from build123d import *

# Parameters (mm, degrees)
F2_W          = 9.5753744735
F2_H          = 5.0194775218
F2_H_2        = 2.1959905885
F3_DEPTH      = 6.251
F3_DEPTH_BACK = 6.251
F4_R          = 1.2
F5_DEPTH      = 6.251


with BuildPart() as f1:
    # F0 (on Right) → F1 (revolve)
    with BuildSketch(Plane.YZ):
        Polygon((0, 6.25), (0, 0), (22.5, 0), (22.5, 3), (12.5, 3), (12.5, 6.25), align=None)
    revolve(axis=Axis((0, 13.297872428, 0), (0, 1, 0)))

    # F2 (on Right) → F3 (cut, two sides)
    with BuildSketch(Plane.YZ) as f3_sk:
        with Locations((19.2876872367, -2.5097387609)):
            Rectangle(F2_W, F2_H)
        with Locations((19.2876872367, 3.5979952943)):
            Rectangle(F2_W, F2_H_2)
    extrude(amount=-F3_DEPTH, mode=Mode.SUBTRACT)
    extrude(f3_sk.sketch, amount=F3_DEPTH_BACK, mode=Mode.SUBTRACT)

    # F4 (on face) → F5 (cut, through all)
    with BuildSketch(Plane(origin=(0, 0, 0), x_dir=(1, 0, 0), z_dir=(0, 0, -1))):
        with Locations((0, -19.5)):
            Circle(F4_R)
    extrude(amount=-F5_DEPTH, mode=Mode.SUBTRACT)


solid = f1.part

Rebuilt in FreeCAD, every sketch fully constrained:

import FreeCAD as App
import Part
import Sketcher
Q = App.Units.Quantity

doc = App.newDocument("Part")
params = doc.addObject("Spreadsheet::Sheet", "Params")
for row, (alias, value) in enumerate([
    ("sketch1_width", "10 mm"),
    ("sketch1_height", "3 mm"),
    ("sketch1_width2", "22.5 mm"),
    ("sketch1_height2", "6.25 mm"),
    ("revolution_angle", "360 deg"),
    ("sketch3_diameter", "2.4 mm"),
], start=1):
    params.set(f"A{row}", alias)
    params.set(f"B{row}", "=" + value)
    params.setAlias(f"B{row}", alias)

body = doc.addObject("PartDesign::Body", "Body")

# Sketch on YZ plane
sketch1 = body.newObject("Sketcher::SketchObject", "Sketch")
sketch1.AttachmentSupport = (doc.getObject("YZ_Plane"), [""])
sketch1.MapMode = "FlatFace"
sketch1.addGeometry([
    Part.LineSegment(App.Vector(0, 6.2, 0), App.Vector(0, 0, 0)),  # 0
    Part.LineSegment(App.Vector(0, 0, 0), App.Vector(22.5, 0, 0)),  # 1
    Part.LineSegment(App.Vector(22.5, 0, 0), App.Vector(22.5, 3, 0)),  # 2
    Part.LineSegment(App.Vector(22.5, 3, 0), App.Vector(12.5, 3, 0)),  # 3
    Part.LineSegment(App.Vector(12.5, 3, 0), App.Vector(12.5, 6.2, 0)),  # 4
    Part.LineSegment(App.Vector(12.5, 6.2, 0), App.Vector(0, 6.2, 0)),  # 5
], False)
sketch1.addConstraint([
    Sketcher.Constraint("Coincident", 0, 2, 1, 1),
    Sketcher.Constraint("Coincident", 1, 2, 2, 1),
    Sketcher.Constraint("Coincident", 2, 2, 3, 1),
    Sketcher.Constraint("Coincident", 3, 2, 4, 1),
    Sketcher.Constraint("Coincident", 4, 2, 5, 1),
    Sketcher.Constraint("Coincident", 5, 2, 0, 1),
    Sketcher.Constraint("Vertical", 0),
    Sketcher.Constraint("Horizontal", 1),
    Sketcher.Constraint("Vertical", 2),
    Sketcher.Constraint("Horizontal", 3),
    Sketcher.Constraint("Vertical", 4),
    Sketcher.Constraint("Horizontal", 5),
    Sketcher.Constraint("Coincident", 0, 2, -1, 1),
    Sketcher.Constraint("DistanceX", 3, 2, 3, 1, Q("10 mm")),
    Sketcher.Constraint("DistanceY", 2, 1, 2, 2, Q("3 mm")),
    Sketcher.Constraint("DistanceX", 1, 1, 1, 2, Q("22.5 mm")),
    Sketcher.Constraint("DistanceY", 0, 2, 0, 1, Q("6.25 mm")),
])
sketch1.setExpression("Constraints[13]", "Params.sketch1_width")
sketch1.setExpression("Constraints[14]", "Params.sketch1_height")
sketch1.setExpression("Constraints[15]", "Params.sketch1_width2")
sketch1.setExpression("Constraints[16]", "Params.sketch1_height2")
revolution = body.newObject("PartDesign::Revolution", "Revolution")
revolution.Profile = sketch1
revolution.ReferenceAxis = (sketch1, ["H_Axis"])
revolution.setExpression("Angle", "Params.revolution_angle")

# Sketch on YZ plane
sketch2 = body.newObject("Sketcher::SketchObject", "Sketch001")
sketch2.AttachmentSupport = (doc.getObject("YZ_Plane"), [""])
sketch2.MapMode = "FlatFace"
sketch2.addGeometry([
    Part.LineSegment(App.Vector(14.5, 0, 0), App.Vector(14.5, -5, 0)),  # 0
    Part.LineSegment(App.Vector(14.5, -5, 0), App.Vector(24.1, -5, 0)),  # 1
    Part.LineSegment(App.Vector(24.1, -5, 0), App.Vector(24.1, 0, 0)),  # 2
    Part.LineSegment(App.Vector(24.1, 0, 0), App.Vector(14.5, 0, 0)),  # 3
    Part.LineSegment(App.Vector(14.5, 4.7, 0), App.Vector(14.5, 2.5, 0)),  # 4
    Part.LineSegment(App.Vector(14.5, 2.5, 0), App.Vector(24.1, 2.5, 0)),  # 5
    Part.LineSegment(App.Vector(24.1, 2.5, 0), App.Vector(24.1, 4.7, 0)),  # 6
    Part.LineSegment(App.Vector(24.1, 4.7, 0), App.Vector(14.5, 4.7, 0)),  # 7
], False)
sketch2.addConstraint([
    Sketcher.Constraint("Coincident", 0, 2, 1, 1),
    Sketcher.Constraint("Coincident", 1, 2, 2, 1),
    Sketcher.Constraint("Coincident", 2, 2, 3, 1),
    Sketcher.Constraint("Coincident", 3, 2, 0, 1),
    Sketcher.Constraint("Coincident", 4, 2, 5, 1),
    Sketcher.Constraint("Coincident", 5, 2, 6, 1),
    Sketcher.Constraint("Coincident", 6, 2, 7, 1),
    Sketcher.Constraint("Coincident", 7, 2, 4, 1),
    Sketcher.Constraint("Vertical", 0),
    Sketcher.Constraint("Horizontal", 1),
    Sketcher.Constraint("Vertical", 2),
    Sketcher.Constraint("Horizontal", 3),
    Sketcher.Constraint("Vertical", 4),
    Sketcher.Constraint("Horizontal", 5),
    Sketcher.Constraint("Vertical", 6),
    Sketcher.Constraint("Horizontal", 7),
    Sketcher.Constraint("PointOnObject", 2, 2, -1),
    Sketcher.Constraint("Vertical", 3, 2, 4, 2),
    Sketcher.Constraint("Vertical", 2, 2, 5, 2),
    Sketcher.Constraint("DistanceX", -1, 1, 0, 2, Q("14.5 mm")),
    Sketcher.Constraint("DistanceY", -1, 1, 4, 2, Q("2.5 mm")),
    Sketcher.Constraint("DistanceY", 4, 2, 4, 1, Q("2.195991 mm")),
    Sketcher.Constraint("DistanceX", 1, 1, 1, 2, Q("9.575374 mm")),
    Sketcher.Constraint("DistanceY", 0, 2, 0, 1, Q("5.019478 mm")),
])
pocket1 = body.newObject("PartDesign::Pocket", "Pocket")
pocket1.Profile = sketch2
pocket1.Type = "ThroughAll"
pocket1.Midplane = True

# Sketch on XY plane
sketch3 = body.newObject("Sketcher::SketchObject", "Sketch002")
sketch3.AttachmentSupport = (doc.getObject("XY_Plane"), [""])
sketch3.MapMode = "FlatFace"
sketch3.addGeometry(Part.Circle(App.Vector(0, 19.5, 0), App.Vector(0, 0, 1), 1.2), False)
sketch3.addConstraint([
    Sketcher.Constraint("PointOnObject", 0, 3, -2),
    Sketcher.Constraint("Diameter", 0, Q("2.4 mm")),
    Sketcher.Constraint("DistanceY", -1, 1, 0, 3, Q("19.5 mm")),
])
sketch3.setExpression("Constraints[1]", "Params.sketch3_diameter")
pocket2 = body.newObject("PartDesign::Pocket", "Pocket001")
pocket2.Profile = sketch3
pocket2.Type = "ThroughAll"
pocket2.Reversed = True

doc.recompute()
